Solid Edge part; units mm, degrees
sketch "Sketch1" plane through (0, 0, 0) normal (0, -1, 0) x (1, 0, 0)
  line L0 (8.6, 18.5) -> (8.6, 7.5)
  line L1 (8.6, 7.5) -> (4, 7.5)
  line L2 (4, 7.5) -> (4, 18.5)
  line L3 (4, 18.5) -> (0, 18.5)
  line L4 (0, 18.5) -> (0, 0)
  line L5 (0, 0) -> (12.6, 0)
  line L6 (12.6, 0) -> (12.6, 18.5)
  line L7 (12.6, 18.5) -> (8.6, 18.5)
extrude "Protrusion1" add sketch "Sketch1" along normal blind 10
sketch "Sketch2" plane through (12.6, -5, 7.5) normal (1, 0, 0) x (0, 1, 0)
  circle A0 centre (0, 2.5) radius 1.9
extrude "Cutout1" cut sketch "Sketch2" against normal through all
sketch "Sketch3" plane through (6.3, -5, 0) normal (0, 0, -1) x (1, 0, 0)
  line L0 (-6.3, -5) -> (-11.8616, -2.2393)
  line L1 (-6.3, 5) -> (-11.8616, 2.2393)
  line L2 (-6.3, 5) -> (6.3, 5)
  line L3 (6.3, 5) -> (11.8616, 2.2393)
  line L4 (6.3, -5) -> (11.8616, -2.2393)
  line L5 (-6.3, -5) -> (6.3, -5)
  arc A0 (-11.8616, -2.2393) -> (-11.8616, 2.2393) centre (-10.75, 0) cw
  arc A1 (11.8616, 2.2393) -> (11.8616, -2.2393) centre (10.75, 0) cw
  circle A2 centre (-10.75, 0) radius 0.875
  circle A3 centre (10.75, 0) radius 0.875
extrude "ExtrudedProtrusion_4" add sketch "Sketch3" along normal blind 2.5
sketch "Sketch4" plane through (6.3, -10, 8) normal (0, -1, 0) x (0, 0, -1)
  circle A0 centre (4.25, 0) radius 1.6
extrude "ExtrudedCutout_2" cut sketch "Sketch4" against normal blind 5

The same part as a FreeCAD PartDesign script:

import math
import FreeCAD as App
import Part
import Sketcher
Q = App.Units.Quantity


def add_polygon(sketch, points):
    """Adds a closed chain of lines whose ends are joined by coincident constraints."""
    first, n = sketch.GeometryCount, len(points)
    for a, b in zip(points, points[1:] + points[:1]):
        sketch.addGeometry(Part.LineSegment(App.Vector(*a, 0), App.Vector(*b, 0)), False)
    for i in range(n):
        sketch.addConstraint(Sketcher.Constraint("Coincident", first + i, 2, first + (i + 1) % n, 1))

doc = App.newDocument("Part")
body = doc.addObject("PartDesign::Body", "Body")

sketch1 = body.newObject("Sketcher::SketchObject", "Sketch")
sketch1.AttachmentSupport = (doc.getObject("XZ_Plane"), [""])
sketch1.MapMode = "FlatFace"
add_polygon(sketch1, [(12.6, 18.5), (8.6, 18.5), (8.6, 7.5), (4, 7.5), (4, 18.5), (0, 18.5), (0, 0), (12.6, 0)])
sketch1.addConstraint(Sketcher.Constraint("Horizontal", 0))
sketch1.addConstraint(Sketcher.Constraint("Vertical", 1))
sketch1.addConstraint(Sketcher.Constraint("Horizontal", 2))
sketch1.addConstraint(Sketcher.Constraint("Vertical", 3))
sketch1.addConstraint(Sketcher.Constraint("Horizontal", 4))
sketch1.addConstraint(Sketcher.Constraint("Vertical", 5))
sketch1.addConstraint(Sketcher.Constraint("Horizontal", 6))
sketch1.addConstraint(Sketcher.Constraint("Vertical", 7))
sketch1.addConstraint(Sketcher.Constraint("Coincident", 5, 2, -1, 1))
sketch1.addConstraint(Sketcher.Constraint("Horizontal", 0, 2, 3, 2))
sketch1.addConstraint(Sketcher.Constraint("Equal", 0, 4))
sketch1.addConstraint(Sketcher.Constraint("DistanceX", 0, 2, 0, 1, Q("4 mm")))
sketch1.addConstraint(Sketcher.Constraint("DistanceY", 1, 2, 1, 1, Q("11 mm")))
sketch1.addConstraint(Sketcher.Constraint("DistanceX", 2, 2, 2, 1, Q("4.6 mm")))
sketch1.addConstraint(Sketcher.Constraint("DistanceY", 5, 2, 5, 1, Q("18.5 mm")))
pad1 = body.newObject("PartDesign::Pad", "Pad")
pad1.Profile = sketch1
pad1.Length = 10

sketch2 = body.newObject("Sketcher::SketchObject", "Sketch001")
sketch2.AttachmentSupport = (doc.getObject("YZ_Plane"), [""])
sketch2.MapMode = "FlatFace"
sketch2.AttachmentOffset = App.Placement(App.Vector(0, 0, 12.6), App.Rotation())
sketch2.addGeometry(Part.Circle(App.Vector(-5, 10, 0), App.Vector(0, 0, 1), 1.9), False)
sketch2.addConstraint(Sketcher.Constraint("Diameter", 0, Q("3.8 mm")))
sketch2.addConstraint(Sketcher.Constraint("DistanceX", 0, 3, -1, 1, Q("5 mm")))
sketch2.addConstraint(Sketcher.Constraint("DistanceY", -1, 1, 0, 3, Q("10 mm")))
pocket1 = body.newObject("PartDesign::Pocket", "Pocket")
pocket1.Profile = sketch2
pocket1.Type = "ThroughAll"

sketch3 = body.newObject("Sketcher::SketchObject", "Sketch002")
sketch3.AttachmentSupport = (doc.getObject("XY_Plane"), [""])
sketch3.MapMode = "FlatFace"
sketch3.addGeometry(Part.LineSegment(App.Vector(-5.6, -2.8, 0), App.Vector(0, 0, 0)), False)
sketch3.addGeometry(Part.LineSegment(App.Vector(0, 0, 0), App.Vector(12.6, 0, 0)), False)
sketch3.addGeometry(Part.LineSegment(App.Vector(12.6, 0, 0), App.Vector(18.2, -2.8, 0)), False)
sketch3.addGeometry(Part.ArcOfCircle(Part.Circle(App.Vector(17.1, -5, 0), App.Vector(0, 0, 1), 2.5), math.radians(-64), math.radians(64)), False)
sketch3.addGeometry(Part.LineSegment(App.Vector(18.2, -7.2, 0), App.Vector(12.6, -10, 0)), False)
sketch3.addGeometry(Part.LineSegment(App.Vector(12.6, -10, 0), App.Vector(0, -10, 0)), False)
sketch3.addGeometry(Part.LineSegment(App.Vector(0, -10, 0), App.Vector(-5.6, -7.2, 0)), False)
sketch3.addGeometry(Part.ArcOfCircle(Part.Circle(App.Vector(-4.5, -5, 0), App.Vector(0, 0, 1), 2.5), math.radians(116), math.radians(244)), False)
sketch3.addGeometry(Part.Circle(App.Vector(-4.5, -5, 0), App.Vector(0, 0, 1), 0.9), False)
sketch3.addGeometry(Part.Circle(App.Vector(17.1, -5, 0), App.Vector(0, 0, 1), 0.9), False)
sketch3.addConstraint(Sketcher.Constraint("Coincident", 0, 2, 1, 1))
sketch3.addConstraint(Sketcher.Constraint("Coincident", 1, 2, 2, 1))
sketch3.addConstraint(Sketcher.Constraint("Tangent", 2, 2, 3, 2))
sketch3.addConstraint(Sketcher.Constraint("Tangent", 3, 1, 4, 1))
sketch3.addConstraint(Sketcher.Constraint("Coincident", 4, 2, 5, 1))
sketch3.addConstraint(Sketcher.Constraint("Coincident", 5, 2, 6, 1))
sketch3.addConstraint(Sketcher.Constraint("Tangent", 6, 2, 7, 2))
sketch3.addConstraint(Sketcher.Constraint("Tangent", 7, 1, 0, 1))
sketch3.addConstraint(Sketcher.Constraint("Horizontal", 1))
sketch3.addConstraint(Sketcher.Constraint("Horizontal", 5))
sketch3.addConstraint(Sketcher.Constraint("Coincident", 0, 2, -1, 1))
sketch3.addConstraint(Sketcher.Constraint("Coincident", 8, 3, 7, 3))
sketch3.addConstraint(Sketcher.Constraint("Coincident", 9, 3, 3, 3))
sketch3.addConstraint(Sketcher.Constraint("Equal", 3, 7))
sketch3.addConstraint(Sketcher.Constraint("Equal", 8, 9))
sketch3.addConstraint(Sketcher.Constraint("PointOnObject", 5, 2, -2))
sketch3.addConstraint(Sketcher.Constraint("Parallel", 0, 4))
sketch3.addConstraint(Sketcher.Constraint("Parallel", 2, 6))
sketch3.addConstraint(Sketcher.Constraint("Horizontal", 3, 3, 7, 3))
sketch3.addConstraint(Sketcher.Constraint("Horizontal", 3, 1, 6, 2))
sketch3.addConstraint(Sketcher.Constraint("Radius", 3, Q("2.5 mm")))
sketch3.addConstraint(Sketcher.Constraint("Diameter", 8, Q("1.75 mm")))
sketch3.addConstraint(Sketcher.Constraint("DistanceX", 1, 1, 1, 2, Q("12.6 mm")))
sketch3.addConstraint(Sketcher.Constraint("DistanceY", 3, 3, -1, 1, Q("5 mm")))
sketch3.addConstraint(Sketcher.Constraint("Angle", 0, Q("26.3992 deg")))
pad2 = body.newObject("PartDesign::Pad", "Pad001")
pad2.Profile = sketch3
pad2.Length = 2.5
pad2.Reversed = True

sketch4 = body.newObject("Sketcher::SketchObject", "Sketch003")
sketch4.AttachmentSupport = (doc.getObject("XZ_Plane"), [""])
sketch4.MapMode = "FlatFace"
sketch4.AttachmentOffset = App.Placement(App.Vector(0, 0, 10), App.Rotation())
sketch4.addGeometry(Part.Circle(App.Vector(6.3, 3.8, 0), App.Vector(0, 0, 1), 1.6), False)
sketch4.addConstraint(Sketcher.Constraint("Diameter", 0, Q("3.2 mm")))
sketch4.addConstraint(Sketcher.Constraint("DistanceX", -1, 1, 0, 3, Q("6.3 mm")))
sketch4.addConstraint(Sketcher.Constraint("DistanceY", -1, 1, 0, 3, Q("3.75 mm")))
pocket2 = body.newObject("PartDesign::Pocket", "Pocket001")
pocket2.Profile = sketch4
pocket2.Length = 5

doc.recompute()
